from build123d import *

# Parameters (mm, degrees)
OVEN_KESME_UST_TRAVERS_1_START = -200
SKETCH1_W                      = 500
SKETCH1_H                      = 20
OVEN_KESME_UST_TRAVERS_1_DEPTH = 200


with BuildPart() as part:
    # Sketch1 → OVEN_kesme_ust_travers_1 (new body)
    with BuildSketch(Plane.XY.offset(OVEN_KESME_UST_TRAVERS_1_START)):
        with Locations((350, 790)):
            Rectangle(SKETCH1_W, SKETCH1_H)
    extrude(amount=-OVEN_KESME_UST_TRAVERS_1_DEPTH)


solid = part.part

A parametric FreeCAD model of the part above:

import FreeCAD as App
import Part
import Sketcher

V = App.Vector


def add_polygon(sketch, points):
    """Adds a closed chain of lines whose ends are joined by coincident constraints."""
    first, n = sketch.GeometryCount, len(points)
    for a, b in zip(points, points[1:] + points[:1]):
        sketch.addGeometry(Part.LineSegment(App.Vector(*a, 0), App.Vector(*b, 0)), False)
    for i in range(n):
        sketch.addConstraint(Sketcher.Constraint("Coincident", first + i, 2, first + (i + 1) % n, 1))

doc = App.newDocument("Part")
body = doc.addObject("PartDesign::Body", "Body")

sketch1 = doc.addObject("Sketcher::SketchObject", "Sketch")
body.addObject(sketch1)
sketch1.AttachmentSupport = (doc.XY_Plane, [""])
sketch1.MapMode = "FlatFace"
sketch1.AttachmentOffset = App.Placement(V(0, 0, -200), App.Rotation())
add_polygon(sketch1, [(100, 800), (100, 780), (600, 780), (600, 800)])
sketch1.addConstraint([
    Sketcher.Constraint("Vertical", 0),
    Sketcher.Constraint("Horizontal", 1),
    Sketcher.Constraint("Vertical", 2),
    Sketcher.Constraint("Horizontal", 3),
    Sketcher.Constraint("DistanceX", 1, 1, 1, 2, 500.0),
    Sketcher.Constraint("DistanceY", 0, 2, 0, 1, 20.0),
    Sketcher.Constraint("DistanceX", -1, 1, 0, 2, 100.0),
    Sketcher.Constraint("DistanceY", -1, 1, 0, 2, 780.0),
])
pad1 = doc.addObject("PartDesign::Pad", "Pad")
body.addObject(pad1)
pad1.Profile = sketch1
pad1.Length = 200
pad1.Reversed = True

doc.recompute()
